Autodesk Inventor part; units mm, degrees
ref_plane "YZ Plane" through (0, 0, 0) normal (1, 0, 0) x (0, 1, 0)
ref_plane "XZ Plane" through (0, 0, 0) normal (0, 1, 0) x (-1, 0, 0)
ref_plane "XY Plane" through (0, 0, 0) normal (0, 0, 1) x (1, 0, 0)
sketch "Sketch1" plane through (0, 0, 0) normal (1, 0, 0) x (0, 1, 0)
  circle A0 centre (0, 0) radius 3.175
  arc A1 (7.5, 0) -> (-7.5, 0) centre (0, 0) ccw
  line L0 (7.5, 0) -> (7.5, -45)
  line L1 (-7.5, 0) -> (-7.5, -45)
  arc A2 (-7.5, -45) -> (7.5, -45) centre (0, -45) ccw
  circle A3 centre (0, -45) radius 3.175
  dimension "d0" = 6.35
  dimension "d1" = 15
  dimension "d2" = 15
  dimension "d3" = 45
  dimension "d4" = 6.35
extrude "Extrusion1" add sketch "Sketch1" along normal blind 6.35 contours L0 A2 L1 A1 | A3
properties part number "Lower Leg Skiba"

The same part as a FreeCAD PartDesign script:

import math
import FreeCAD as App
import Part
import Sketcher
from FreeCAD import Vector

doc = App.newDocument("Part")
body = doc.addObject("PartDesign::Body", "Body")

# Sketch on YZ plane
sketch1 = body.newObject("Sketcher::SketchObject", "Sketch")
sketch1.AttachmentSupport = (doc.getObject("YZ_Plane"), [""])
sketch1.MapMode = "FlatFace"
sketch1.addGeometry([
    Part.LineSegment(Vector(7.5, -45, 0), Vector(7.5, 0, 0)),  # 0
    Part.ArcOfCircle(Part.Circle(Vector(0, 0, 0), Vector(0, 0, 1), 7.5), math.radians(0), math.radians(180)),  # 1
    Part.LineSegment(Vector(-7.5, 0, 0), Vector(-7.5, -45, 0)),  # 2
    Part.ArcOfCircle(Part.Circle(Vector(0, -45, 0), Vector(0, 0, 1), 7.5), math.radians(180), math.radians(360)),  # 3
    Part.Circle(Vector(0, 0, 0), Vector(0, 0, 1), 3.2),  # 4
], False)
sketch1.addConstraint([
    Sketcher.Constraint("Tangent", 0, 2, 1, 1),
    Sketcher.Constraint("Tangent", 1, 2, 2, 1),
    Sketcher.Constraint("Tangent", 2, 2, 3, 1),
    Sketcher.Constraint("Tangent", 3, 2, 0, 1),
    Sketcher.Constraint("Vertical", 0),
    Sketcher.Constraint("Vertical", 2),
    Sketcher.Constraint("Coincident", 1, 3, -1, 1),
    Sketcher.Constraint("Coincident", 4, 3, -1, 1),
    Sketcher.Constraint("Radius", 1, 7.5),
    Sketcher.Constraint("Diameter", 4, 6.35),
    Sketcher.Constraint("DistanceY", 0, 1, 0, 2, 45.0),
])
pad1 = body.newObject("PartDesign::Pad", "Pad")
pad1.Profile = sketch1
pad1.Length = 6.35

doc.recompute()
